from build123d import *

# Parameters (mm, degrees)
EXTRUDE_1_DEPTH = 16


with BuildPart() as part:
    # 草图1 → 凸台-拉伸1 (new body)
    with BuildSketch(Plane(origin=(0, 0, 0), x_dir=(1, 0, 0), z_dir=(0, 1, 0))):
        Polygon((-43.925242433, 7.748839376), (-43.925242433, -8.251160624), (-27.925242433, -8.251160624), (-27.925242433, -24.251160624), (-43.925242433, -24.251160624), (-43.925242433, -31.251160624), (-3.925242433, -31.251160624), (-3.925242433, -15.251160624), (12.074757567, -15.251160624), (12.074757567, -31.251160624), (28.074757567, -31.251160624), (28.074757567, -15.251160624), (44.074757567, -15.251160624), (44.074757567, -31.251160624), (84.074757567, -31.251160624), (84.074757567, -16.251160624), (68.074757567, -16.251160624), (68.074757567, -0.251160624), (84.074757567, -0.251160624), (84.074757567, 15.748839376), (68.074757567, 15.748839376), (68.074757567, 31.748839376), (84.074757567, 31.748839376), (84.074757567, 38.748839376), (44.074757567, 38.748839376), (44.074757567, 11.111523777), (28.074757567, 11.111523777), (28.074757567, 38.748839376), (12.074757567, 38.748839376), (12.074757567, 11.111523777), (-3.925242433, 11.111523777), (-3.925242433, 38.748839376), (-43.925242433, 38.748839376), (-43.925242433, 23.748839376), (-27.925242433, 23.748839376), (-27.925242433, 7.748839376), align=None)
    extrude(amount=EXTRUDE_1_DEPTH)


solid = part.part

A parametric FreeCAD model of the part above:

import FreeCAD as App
import Part
import Sketcher
Q = App.Units.Quantity


def add_polygon(sketch, points):
    """Adds a closed chain of lines whose ends are joined by coincident constraints."""
    first, n = sketch.GeometryCount, len(points)
    for a, b in zip(points, points[1:] + points[:1]):
        sketch.addGeometry(Part.LineSegment(App.Vector(*a, 0), App.Vector(*b, 0)), False)
    for i in range(n):
        sketch.addConstraint(Sketcher.Constraint("Coincident", first + i, 2, first + (i + 1) % n, 1))

doc = App.newDocument("Part")
body = doc.addObject("PartDesign::Body", "Body")

# Sketch on XZ plane
sketch1 = doc.addObject("Sketcher::SketchObject", "Sketch")
body.addObject(sketch1)
sketch1.AttachmentSupport = (doc.XZ_Plane, [""])
sketch1.MapMode = "FlatFace"
add_polygon(sketch1, [(-44, -8), (-44, 8), (-28, 8), (-28, 24), (-44, 24), (-44, 31), (-4, 31), (-4, 15), (12, 15), (12, 31), (28, 31), (28, 15), (44, 15), (44, 31), (84, 31), (84, 16), (68, 16), (68, 0), (84, 0), (84, -16), (68, -16), (68, -32), (84, -32), (84, -39), (44, -39), (44, -11), (28, -11), (28, -39), (12, -39), (12, -11), (-4, -11), (-4, -39), (-44, -39), (-44, -24), (-28, -24), (-28, -8)])  # lines 0-35
sketch1.addConstraint([
    Sketcher.Constraint("Vertical", 0),
    Sketcher.Constraint("Horizontal", 1),
    Sketcher.Constraint("Vertical", 2),
    Sketcher.Constraint("Horizontal", 3),
    Sketcher.Constraint("Vertical", 4),
    Sketcher.Constraint("Horizontal", 5),
    Sketcher.Constraint("Vertical", 6),
    Sketcher.Constraint("Horizontal", 7),
    Sketcher.Constraint("Vertical", 8),
    Sketcher.Constraint("Horizontal", 9),
    Sketcher.Constraint("Vertical", 10),
    Sketcher.Constraint("Horizontal", 11),
    Sketcher.Constraint("Vertical", 12),
    Sketcher.Constraint("Horizontal", 13),
    Sketcher.Constraint("Vertical", 14),
    Sketcher.Constraint("Horizontal", 15),
    Sketcher.Constraint("Vertical", 16),
    Sketcher.Constraint("Horizontal", 17),
    Sketcher.Constraint("Vertical", 18),
    Sketcher.Constraint("Horizontal", 19),
    Sketcher.Constraint("Vertical", 20),
    Sketcher.Constraint("Horizontal", 21),
    Sketcher.Constraint("Vertical", 22),
    Sketcher.Constraint("Horizontal", 23),
    Sketcher.Constraint("Vertical", 24),
    Sketcher.Constraint("Horizontal", 25),
    Sketcher.Constraint("Vertical", 26),
    Sketcher.Constraint("Horizontal", 27),
    Sketcher.Constraint("Vertical", 28),
    Sketcher.Constraint("Horizontal", 29),
    Sketcher.Constraint("Vertical", 30),
    Sketcher.Constraint("Horizontal", 31),
    Sketcher.Constraint("Vertical", 32),
    Sketcher.Constraint("Horizontal", 33),
    Sketcher.Constraint("Vertical", 34),
    Sketcher.Constraint("Horizontal", 35),
    Sketcher.Constraint("Horizontal", 5, 2, 8, 2),
    Sketcher.Constraint("Horizontal", 7, 2, 10, 2),
    Sketcher.Constraint("Horizontal", 9, 2, 12, 2),
    Sketcher.Constraint("Horizontal", 23, 2, 26, 2),
    Sketcher.Constraint("Horizontal", 25, 2, 28, 2),
    Sketcher.Constraint("Horizontal", 27, 2, 30, 2),
    Sketcher.Constraint("Vertical", 0, 2, 3, 2),
    Sketcher.Constraint("Vertical", 14, 2, 17, 2),
    Sketcher.Constraint("Vertical", 16, 2, 19, 2),
    Sketcher.Constraint("Vertical", 18, 2, 21, 2),
    Sketcher.Constraint("Vertical", 12, 2, 23, 2),
    Sketcher.Constraint("Vertical", 10, 2, 25, 2),
    Sketcher.Constraint("Vertical", 8, 2, 27, 2),
    Sketcher.Constraint("Vertical", 6, 2, 29, 2),
    Sketcher.Constraint("Vertical", 4, 2, 31, 2),
    Sketcher.Constraint("Vertical", 2, 2, 33, 2),
    Sketcher.Constraint("Equal", 3, 7),
    Sketcher.Constraint("Equal", 7, 9),
    Sketcher.Constraint("Equal", 9, 11),
    Sketcher.Constraint("Equal", 5, 13),
    Sketcher.Constraint("Equal", 11, 15),
    Sketcher.Constraint("Equal", 35, 0),
    Sketcher.Constraint("Equal", 0, 2),
    Sketcher.Constraint("Equal", 2, 6),
    Sketcher.Constraint("Equal", 12, 16),
    Sketcher.Constraint("Equal", 16, 18),
    Sketcher.Constraint("Equal", 18, 20),
    Sketcher.Constraint("Equal", 4, 22),
    Sketcher.Constraint("Equal", 14, 32),
    Sketcher.Constraint("DistanceX", 1, 1, 1, 2, Q("16 mm")),
    Sketcher.Constraint("DistanceX", 5, 1, 5, 2, Q("40 mm")),
    Sketcher.Constraint("DistanceY", 4, 1, 4, 2, Q("7 mm")),
    Sketcher.Constraint("DistanceY", 14, 2, 14, 1, Q("15 mm")),
    Sketcher.Constraint("DistanceY", 24, 1, 24, 2, Q("27.637316 mm")),
    Sketcher.Constraint("DistanceY", -1, 1, 0, 2, Q("8.251161 mm")),
    Sketcher.Constraint("DistanceX", 0, 2, -1, 1, Q("43.925242 mm")),
])
pad1 = doc.addObject("PartDesign::Pad", "Pad")
body.addObject(pad1)
pad1.Profile = sketch1
pad1.Length = 16
pad1.Reversed = True

doc.recompute()
